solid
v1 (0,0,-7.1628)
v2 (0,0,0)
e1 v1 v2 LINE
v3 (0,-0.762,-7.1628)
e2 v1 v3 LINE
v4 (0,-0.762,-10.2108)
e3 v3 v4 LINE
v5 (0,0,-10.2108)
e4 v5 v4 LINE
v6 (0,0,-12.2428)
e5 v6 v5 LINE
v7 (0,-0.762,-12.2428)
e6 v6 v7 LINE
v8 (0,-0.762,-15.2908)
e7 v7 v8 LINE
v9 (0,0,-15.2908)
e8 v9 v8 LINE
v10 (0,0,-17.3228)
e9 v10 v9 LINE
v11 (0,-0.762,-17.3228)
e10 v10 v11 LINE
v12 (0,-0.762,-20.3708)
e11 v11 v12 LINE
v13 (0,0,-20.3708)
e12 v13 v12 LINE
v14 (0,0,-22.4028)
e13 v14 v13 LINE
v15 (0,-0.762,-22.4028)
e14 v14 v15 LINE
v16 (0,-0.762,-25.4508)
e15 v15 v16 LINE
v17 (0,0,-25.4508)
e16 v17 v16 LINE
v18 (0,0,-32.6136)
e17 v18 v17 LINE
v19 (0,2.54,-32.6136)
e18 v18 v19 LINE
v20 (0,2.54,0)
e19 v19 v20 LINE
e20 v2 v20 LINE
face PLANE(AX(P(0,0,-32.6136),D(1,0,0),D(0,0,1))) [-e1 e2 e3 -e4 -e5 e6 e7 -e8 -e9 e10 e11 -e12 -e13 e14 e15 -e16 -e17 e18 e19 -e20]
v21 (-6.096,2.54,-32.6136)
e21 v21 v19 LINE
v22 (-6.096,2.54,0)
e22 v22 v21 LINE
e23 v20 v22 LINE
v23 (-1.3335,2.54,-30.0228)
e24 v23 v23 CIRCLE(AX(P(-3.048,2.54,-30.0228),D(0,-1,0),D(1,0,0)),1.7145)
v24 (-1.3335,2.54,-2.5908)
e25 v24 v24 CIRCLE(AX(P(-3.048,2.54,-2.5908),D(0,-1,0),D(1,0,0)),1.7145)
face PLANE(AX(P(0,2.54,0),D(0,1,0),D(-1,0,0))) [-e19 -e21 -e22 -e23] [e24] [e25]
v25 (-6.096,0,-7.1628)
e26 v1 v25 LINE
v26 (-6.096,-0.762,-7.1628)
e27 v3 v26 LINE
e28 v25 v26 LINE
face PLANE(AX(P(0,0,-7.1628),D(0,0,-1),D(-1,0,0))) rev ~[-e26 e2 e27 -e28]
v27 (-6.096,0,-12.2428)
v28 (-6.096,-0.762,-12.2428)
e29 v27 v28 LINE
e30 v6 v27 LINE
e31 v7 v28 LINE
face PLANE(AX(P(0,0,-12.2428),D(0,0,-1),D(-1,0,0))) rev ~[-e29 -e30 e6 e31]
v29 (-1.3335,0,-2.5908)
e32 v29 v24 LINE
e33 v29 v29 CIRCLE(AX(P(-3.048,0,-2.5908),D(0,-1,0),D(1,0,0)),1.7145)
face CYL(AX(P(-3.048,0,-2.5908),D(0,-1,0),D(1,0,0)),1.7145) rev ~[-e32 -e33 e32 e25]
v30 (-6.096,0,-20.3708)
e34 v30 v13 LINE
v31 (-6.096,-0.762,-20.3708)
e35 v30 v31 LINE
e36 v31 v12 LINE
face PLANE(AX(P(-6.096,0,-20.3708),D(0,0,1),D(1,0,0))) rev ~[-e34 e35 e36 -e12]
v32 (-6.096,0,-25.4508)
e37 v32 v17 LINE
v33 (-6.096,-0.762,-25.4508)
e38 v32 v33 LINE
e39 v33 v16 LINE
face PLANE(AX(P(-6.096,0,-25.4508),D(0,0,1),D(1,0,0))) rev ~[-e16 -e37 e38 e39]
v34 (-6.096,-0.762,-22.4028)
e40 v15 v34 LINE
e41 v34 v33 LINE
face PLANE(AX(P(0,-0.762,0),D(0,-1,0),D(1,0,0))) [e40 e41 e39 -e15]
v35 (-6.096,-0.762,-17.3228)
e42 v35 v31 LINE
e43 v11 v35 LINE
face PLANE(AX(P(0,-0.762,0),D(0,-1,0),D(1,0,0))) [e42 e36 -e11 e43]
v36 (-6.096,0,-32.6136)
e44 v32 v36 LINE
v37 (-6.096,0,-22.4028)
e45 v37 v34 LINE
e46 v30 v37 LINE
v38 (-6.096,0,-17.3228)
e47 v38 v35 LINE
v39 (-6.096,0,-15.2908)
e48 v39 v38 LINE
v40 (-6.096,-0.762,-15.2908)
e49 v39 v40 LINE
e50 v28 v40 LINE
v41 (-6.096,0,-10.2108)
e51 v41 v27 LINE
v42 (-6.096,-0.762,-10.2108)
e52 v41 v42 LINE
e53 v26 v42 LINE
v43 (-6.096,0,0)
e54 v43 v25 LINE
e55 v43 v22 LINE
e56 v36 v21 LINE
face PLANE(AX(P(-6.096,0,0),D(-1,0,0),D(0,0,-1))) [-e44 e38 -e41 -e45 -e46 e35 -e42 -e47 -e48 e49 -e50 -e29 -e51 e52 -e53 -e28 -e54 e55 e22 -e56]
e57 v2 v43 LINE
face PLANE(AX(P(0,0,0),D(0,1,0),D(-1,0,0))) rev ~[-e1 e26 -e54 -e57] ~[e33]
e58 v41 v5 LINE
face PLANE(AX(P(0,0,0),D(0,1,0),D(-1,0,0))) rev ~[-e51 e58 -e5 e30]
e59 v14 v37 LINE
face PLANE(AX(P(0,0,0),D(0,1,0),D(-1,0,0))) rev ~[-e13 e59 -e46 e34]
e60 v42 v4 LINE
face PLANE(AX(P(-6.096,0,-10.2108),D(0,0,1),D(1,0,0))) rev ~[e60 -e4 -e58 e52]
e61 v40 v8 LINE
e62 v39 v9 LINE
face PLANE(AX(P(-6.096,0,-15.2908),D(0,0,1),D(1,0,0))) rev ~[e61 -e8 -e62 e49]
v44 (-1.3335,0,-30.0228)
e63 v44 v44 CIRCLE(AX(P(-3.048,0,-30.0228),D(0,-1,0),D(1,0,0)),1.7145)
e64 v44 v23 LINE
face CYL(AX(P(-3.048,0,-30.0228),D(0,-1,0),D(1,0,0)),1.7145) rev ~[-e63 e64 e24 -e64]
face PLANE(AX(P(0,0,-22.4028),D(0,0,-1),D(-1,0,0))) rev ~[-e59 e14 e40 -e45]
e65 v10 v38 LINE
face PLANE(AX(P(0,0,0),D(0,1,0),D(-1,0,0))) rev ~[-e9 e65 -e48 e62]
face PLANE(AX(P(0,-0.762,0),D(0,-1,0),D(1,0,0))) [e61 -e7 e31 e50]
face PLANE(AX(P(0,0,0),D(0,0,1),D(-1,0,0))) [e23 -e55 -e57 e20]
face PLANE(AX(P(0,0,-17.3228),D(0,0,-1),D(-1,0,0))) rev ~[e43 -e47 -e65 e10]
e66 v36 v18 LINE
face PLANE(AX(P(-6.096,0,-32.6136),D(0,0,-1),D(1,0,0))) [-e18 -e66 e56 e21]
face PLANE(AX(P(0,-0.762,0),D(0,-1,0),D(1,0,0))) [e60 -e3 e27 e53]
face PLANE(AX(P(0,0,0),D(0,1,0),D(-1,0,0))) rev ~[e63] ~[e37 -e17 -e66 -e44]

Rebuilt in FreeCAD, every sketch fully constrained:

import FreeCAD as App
import Part
import Sketcher
from FreeCAD import Vector
Q = App.Units.Quantity

doc = App.newDocument("Part")
body = doc.addObject("PartDesign::Body", "Body")

# Sketch on XZ plane
sketch1 = body.newObject("Sketcher::SketchObject", "Sketch")
sketch1.AttachmentSupport = (doc.getObject("XZ_Plane"), [""])
sketch1.MapMode = "FlatFace"
sketch1.addGeometry([
    Part.LineSegment(Vector(-6, 0, 0), Vector(0, 0, 0)),
    Part.LineSegment(Vector(0, 0, 0), Vector(0, -33, 0)),
    Part.LineSegment(Vector(0, -33, 0), Vector(-6, -33, 0)),
    Part.LineSegment(Vector(-6, -33, 0), Vector(-6, 0, 0)),
], False)
sketch1.addConstraint([
    Sketcher.Constraint("Coincident", 0, 2, 1, 1),
    Sketcher.Constraint("Coincident", 1, 2, 2, 1),
    Sketcher.Constraint("Coincident", 2, 2, 3, 1),
    Sketcher.Constraint("Coincident", 3, 2, 0, 1),
    Sketcher.Constraint("Horizontal", 0),
    Sketcher.Constraint("Vertical", 1),
    Sketcher.Constraint("Horizontal", 2),
    Sketcher.Constraint("Vertical", 3),
    Sketcher.Constraint("Coincident", 0, 2, -1, 1),
    Sketcher.Constraint("DistanceX", 0, 1, 0, 2, Q("0.24 in")),
    Sketcher.Constraint("DistanceY", 1, 2, 1, 1, Q("1.284 in")),
])
pad1 = body.newObject("PartDesign::Pad", "Pad")
pad1.Profile = sketch1
pad1.Length = Q("0.1 in")
pad1.Reversed = True

# Sketch on XZ plane
sketch2 = body.newObject("Sketcher::SketchObject", "Sketch001")
sketch2.AttachmentSupport = (doc.getObject("XZ_Plane"), [""])
sketch2.MapMode = "FlatFace"
sketch2.addGeometry([
    Part.LineSegment(Vector(0, -25.5, 0), Vector(0, -22.4, 0)),  # 0
    Part.LineSegment(Vector(0, -22.4, 0), Vector(-6.1, -22.4, 0)),  # 1
    Part.LineSegment(Vector(-6.1, -22.4, 0), Vector(-6.1, -25.5, 0)),  # 2
    Part.LineSegment(Vector(-6.1, -25.5, 0), Vector(0, -25.5, 0)),  # 3
    Part.LineSegment(Vector(0, -20.4, 0), Vector(0, -17.3, 0)),  # 4
    Part.LineSegment(Vector(0, -17.3, 0), Vector(-6.1, -17.3, 0)),  # 5
    Part.LineSegment(Vector(-6.1, -17.3, 0), Vector(-6.1, -20.4, 0)),  # 6
    Part.LineSegment(Vector(-6.1, -20.4, 0), Vector(0, -20.4, 0)),  # 7
    Part.LineSegment(Vector(0, -15.3, 0), Vector(0, -12.2, 0)),  # 8
    Part.LineSegment(Vector(0, -12.2, 0), Vector(-6.1, -12.2, 0)),  # 9
    Part.LineSegment(Vector(-6.1, -12.2, 0), Vector(-6.1, -15.3, 0)),  # 10
    Part.LineSegment(Vector(-6.1, -15.3, 0), Vector(0, -15.3, 0)),  # 11
    Part.LineSegment(Vector(0, -10.2, 0), Vector(0, -7.2, 0)),  # 12
    Part.LineSegment(Vector(0, -7.2, 0), Vector(-6.1, -7.2, 0)),  # 13
    Part.LineSegment(Vector(-6.1, -7.2, 0), Vector(-6.1, -10.2, 0)),  # 14
    Part.LineSegment(Vector(-6.1, -10.2, 0), Vector(0, -10.2, 0)),  # 15
], False)
sketch2.addConstraint([
    Sketcher.Constraint("Coincident", 0, 2, 1, 1),
    Sketcher.Constraint("Coincident", 1, 2, 2, 1),
    Sketcher.Constraint("Coincident", 2, 2, 3, 1),
    Sketcher.Constraint("Coincident", 3, 2, 0, 1),
    Sketcher.Constraint("Coincident", 4, 2, 5, 1),
    Sketcher.Constraint("Coincident", 5, 2, 6, 1),
    Sketcher.Constraint("Coincident", 6, 2, 7, 1),
    Sketcher.Constraint("Coincident", 7, 2, 4, 1),
    Sketcher.Constraint("Coincident", 8, 2, 9, 1),
    Sketcher.Constraint("Coincident", 9, 2, 10, 1),
    Sketcher.Constraint("Coincident", 10, 2, 11, 1),
    Sketcher.Constraint("Coincident", 11, 2, 8, 1),
    Sketcher.Constraint("Coincident", 12, 2, 13, 1),
    Sketcher.Constraint("Coincident", 13, 2, 14, 1),
    Sketcher.Constraint("Coincident", 14, 2, 15, 1),
    Sketcher.Constraint("Coincident", 15, 2, 12, 1),
    Sketcher.Constraint("Vertical", 0),
    Sketcher.Constraint("Horizontal", 1),
    Sketcher.Constraint("Vertical", 2),
    Sketcher.Constraint("Horizontal", 3),
    Sketcher.Constraint("Vertical", 4),
    Sketcher.Constraint("Horizontal", 5),
    Sketcher.Constraint("Vertical", 6),
    Sketcher.Constraint("Horizontal", 7),
    Sketcher.Constraint("Vertical", 8),
    Sketcher.Constraint("Horizontal", 9),
    Sketcher.Constraint("Vertical", 10),
    Sketcher.Constraint("Horizontal", 11),
    Sketcher.Constraint("Vertical", 12),
    Sketcher.Constraint("Horizontal", 13),
    Sketcher.Constraint("Vertical", 14),
    Sketcher.Constraint("Horizontal", 15),
    Sketcher.Constraint("PointOnObject", 0, 2, -2),
    Sketcher.Constraint("PointOnObject", 4, 2, -2),
    Sketcher.Constraint("PointOnObject", 8, 2, -2),
    Sketcher.Constraint("PointOnObject", 12, 2, -2),
    Sketcher.Constraint("Vertical", 2, 2, 5, 2),
    Sketcher.Constraint("Vertical", 6, 2, 9, 2),
    Sketcher.Constraint("Vertical", 10, 2, 13, 2),
    Sketcher.Constraint("Equal", 2, 4),
    Sketcher.Constraint("Equal", 6, 8),
    Sketcher.Constraint("Equal", 10, 12),
    Sketcher.Constraint("DistanceY", 0, 1, 0, 2, Q("0.12 in")),
    Sketcher.Constraint("DistanceY", 1, 2, 6, 2, Q("0.08 in")),
    Sketcher.Constraint("DistanceY", 5, 2, 10, 2, Q("0.08 in")),
    Sketcher.Constraint("DistanceY", 9, 2, 14, 2, Q("0.08 in")),
    Sketcher.Constraint("DistanceX", 1, 2, 1, 1, Q("0.24 in")),
    Sketcher.Constraint("DistanceY", 0, 2, -1, 1, Q("0.882 in")),
])
pad2 = body.newObject("PartDesign::Pad", "Pad001")
pad2.Profile = sketch2
pad2.Length = Q("0.03 in")

# Sketch on XZ plane
sketch3 = body.newObject("Sketcher::SketchObject", "Sketch002")
sketch3.AttachmentSupport = (doc.getObject("XZ_Plane"), [""])
sketch3.MapMode = "FlatFace"
sketch3.addGeometry([
    Part.Circle(Vector(-3, -2.6, 0), Vector(0, 0, 1), 1.7),
    Part.Circle(Vector(-3, -30, 0), Vector(0, 0, 1), 1.7),
], False)
sketch3.addConstraint([
    Sketcher.Constraint("Equal", 0, 1),
    Sketcher.Constraint("Vertical", 0, 3, 1, 3),
    Sketcher.Constraint("Diameter", 0, Q("0.135 in")),
    Sketcher.Constraint("DistanceX", 0, 3, -1, 1, Q("0.12 in")),
    Sketcher.Constraint("DistanceY", 1, 3, 0, 3, Q("1.08 in")),
    Sketcher.Constraint("DistanceY", 0, 3, -1, 1, Q("0.102 in")),
])
pocket1 = body.newObject("PartDesign::Pocket", "Pocket")
pocket1.Profile = sketch3
pocket1.Type = "ThroughAll"

doc.recompute()
